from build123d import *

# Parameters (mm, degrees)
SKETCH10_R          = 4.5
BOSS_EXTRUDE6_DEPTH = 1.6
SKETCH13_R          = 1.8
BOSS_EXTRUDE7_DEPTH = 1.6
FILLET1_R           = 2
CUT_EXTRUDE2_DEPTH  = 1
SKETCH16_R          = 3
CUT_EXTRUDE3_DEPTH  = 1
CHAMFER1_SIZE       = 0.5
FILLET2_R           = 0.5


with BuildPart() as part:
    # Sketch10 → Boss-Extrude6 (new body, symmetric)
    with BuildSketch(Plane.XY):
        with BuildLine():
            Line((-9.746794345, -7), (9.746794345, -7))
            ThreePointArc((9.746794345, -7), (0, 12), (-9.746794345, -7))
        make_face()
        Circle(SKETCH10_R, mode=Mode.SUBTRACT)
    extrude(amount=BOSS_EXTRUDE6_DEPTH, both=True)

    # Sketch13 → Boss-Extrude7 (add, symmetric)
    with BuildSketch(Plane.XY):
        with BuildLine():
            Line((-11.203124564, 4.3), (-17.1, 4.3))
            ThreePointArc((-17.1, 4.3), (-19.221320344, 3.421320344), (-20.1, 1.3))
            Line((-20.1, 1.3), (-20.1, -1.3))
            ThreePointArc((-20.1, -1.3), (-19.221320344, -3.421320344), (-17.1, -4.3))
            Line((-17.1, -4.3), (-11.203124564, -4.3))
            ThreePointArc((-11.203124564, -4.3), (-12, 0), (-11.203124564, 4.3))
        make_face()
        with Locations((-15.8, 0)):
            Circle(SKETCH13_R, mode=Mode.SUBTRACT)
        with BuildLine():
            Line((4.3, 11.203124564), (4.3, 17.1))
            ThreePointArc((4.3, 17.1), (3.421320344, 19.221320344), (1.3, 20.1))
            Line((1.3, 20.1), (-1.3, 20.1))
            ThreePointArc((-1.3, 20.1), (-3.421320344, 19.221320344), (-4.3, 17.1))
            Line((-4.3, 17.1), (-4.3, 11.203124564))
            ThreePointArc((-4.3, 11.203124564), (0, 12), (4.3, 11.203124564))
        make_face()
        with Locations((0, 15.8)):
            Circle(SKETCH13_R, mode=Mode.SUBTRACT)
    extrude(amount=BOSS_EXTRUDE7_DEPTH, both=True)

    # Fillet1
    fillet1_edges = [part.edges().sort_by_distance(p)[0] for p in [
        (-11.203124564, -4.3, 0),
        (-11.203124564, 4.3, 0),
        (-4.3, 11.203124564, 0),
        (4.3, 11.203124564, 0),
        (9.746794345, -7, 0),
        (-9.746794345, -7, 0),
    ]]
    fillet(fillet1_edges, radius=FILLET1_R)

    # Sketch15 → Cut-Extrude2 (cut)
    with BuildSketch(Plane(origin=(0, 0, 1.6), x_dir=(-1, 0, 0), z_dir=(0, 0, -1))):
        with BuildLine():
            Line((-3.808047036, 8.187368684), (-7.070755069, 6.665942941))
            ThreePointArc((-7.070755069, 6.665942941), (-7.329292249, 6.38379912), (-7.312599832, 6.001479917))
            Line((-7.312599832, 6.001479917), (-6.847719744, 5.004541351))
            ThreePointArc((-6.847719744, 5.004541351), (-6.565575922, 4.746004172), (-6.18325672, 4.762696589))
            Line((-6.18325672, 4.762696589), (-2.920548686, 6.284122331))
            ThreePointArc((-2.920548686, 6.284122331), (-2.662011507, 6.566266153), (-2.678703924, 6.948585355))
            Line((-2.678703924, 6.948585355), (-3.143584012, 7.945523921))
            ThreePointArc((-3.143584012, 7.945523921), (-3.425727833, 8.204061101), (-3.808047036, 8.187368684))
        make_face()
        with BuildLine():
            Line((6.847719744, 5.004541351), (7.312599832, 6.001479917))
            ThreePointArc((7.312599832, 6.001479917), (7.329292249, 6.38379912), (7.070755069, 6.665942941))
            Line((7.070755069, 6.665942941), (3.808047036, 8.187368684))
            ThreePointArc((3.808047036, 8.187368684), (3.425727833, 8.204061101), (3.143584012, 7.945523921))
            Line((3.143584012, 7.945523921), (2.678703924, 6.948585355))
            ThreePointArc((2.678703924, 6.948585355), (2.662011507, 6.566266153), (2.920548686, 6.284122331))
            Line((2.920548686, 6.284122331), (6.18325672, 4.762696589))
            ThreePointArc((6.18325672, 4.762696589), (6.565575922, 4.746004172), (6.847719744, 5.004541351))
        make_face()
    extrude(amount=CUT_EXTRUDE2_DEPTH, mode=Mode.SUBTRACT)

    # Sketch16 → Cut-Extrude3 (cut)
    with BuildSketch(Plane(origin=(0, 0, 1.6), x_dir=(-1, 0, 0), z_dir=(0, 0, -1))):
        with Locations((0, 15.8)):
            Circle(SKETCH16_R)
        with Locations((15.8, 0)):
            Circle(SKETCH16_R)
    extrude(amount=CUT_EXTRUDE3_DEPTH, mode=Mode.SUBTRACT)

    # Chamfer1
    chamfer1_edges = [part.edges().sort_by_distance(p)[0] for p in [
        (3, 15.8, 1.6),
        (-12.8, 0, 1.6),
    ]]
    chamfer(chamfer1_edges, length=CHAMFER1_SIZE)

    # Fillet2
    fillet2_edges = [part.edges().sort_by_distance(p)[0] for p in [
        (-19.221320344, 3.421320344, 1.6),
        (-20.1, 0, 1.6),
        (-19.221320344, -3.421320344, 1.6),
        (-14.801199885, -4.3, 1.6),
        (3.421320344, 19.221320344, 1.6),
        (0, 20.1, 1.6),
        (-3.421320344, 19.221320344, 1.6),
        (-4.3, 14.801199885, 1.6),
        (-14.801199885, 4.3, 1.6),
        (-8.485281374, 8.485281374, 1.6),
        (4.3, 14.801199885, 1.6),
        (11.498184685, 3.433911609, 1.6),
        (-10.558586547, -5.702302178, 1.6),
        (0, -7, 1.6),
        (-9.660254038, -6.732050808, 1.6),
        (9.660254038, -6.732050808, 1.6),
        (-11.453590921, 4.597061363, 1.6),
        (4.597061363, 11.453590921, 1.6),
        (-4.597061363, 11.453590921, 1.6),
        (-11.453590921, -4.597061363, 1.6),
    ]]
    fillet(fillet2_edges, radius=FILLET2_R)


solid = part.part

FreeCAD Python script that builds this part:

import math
import FreeCAD as App
import Part
import Sketcher
Q = App.Units.Quantity


def edges_at(feature, points):
    """Names of the edges that pass closest to the given points."""
    edges = feature.Shape.Edges
    near = lambda p: min(range(len(edges)), key=lambda i: edges[i].distToShape(Part.Vertex(*p))[0])
    return sorted({f"Edge{near(p) + 1}" for p in points})

doc = App.newDocument("Part")
body = doc.addObject("PartDesign::Body", "Body")

sketch1 = doc.addObject("Sketcher::SketchObject", "Sketch")
body.addObject(sketch1)
sketch1.AttachmentSupport = (doc.XY_Plane, [""])
sketch1.MapMode = "FlatFace"
sketch1.addGeometry(Part.LineSegment(App.Vector(-9.7, -7, 0), App.Vector(9.7, -7, 0)), False)
sketch1.addGeometry(Part.ArcOfCircle(Part.Circle(App.Vector(0, 0, 0), App.Vector(0, 0, 1), 12), math.radians(-36), math.radians(216)), False)
sketch1.addGeometry(Part.Circle(App.Vector(0, 0, 0), App.Vector(0, 0, 1), 4.5), False)
sketch1.addConstraint(Sketcher.Constraint("Coincident", 0, 1, 1, 2))
sketch1.addConstraint(Sketcher.Constraint("Coincident", 1, 1, 0, 2))
sketch1.addConstraint(Sketcher.Constraint("Horizontal", 0))
sketch1.addConstraint(Sketcher.Constraint("Coincident", 1, 3, -1, 1))
sketch1.addConstraint(Sketcher.Constraint("Coincident", 2, 3, -1, 1))
sketch1.addConstraint(Sketcher.Constraint("Diameter", 2, 9.0))
sketch1.addConstraint(Sketcher.Constraint("Radius", 1, 12.0))
sketch1.addConstraint(Sketcher.Constraint("DistanceY", 0, 1, -1, 1, 7.0))
pad1 = doc.addObject("PartDesign::Pad", "Pad")
body.addObject(pad1)
pad1.Profile = sketch1
pad1.Length = 3.2
pad1.Midplane = True

sketch2 = doc.addObject("Sketcher::SketchObject", "Sketch001")
body.addObject(sketch2)
sketch2.AttachmentSupport = (doc.XY_Plane, [""])
sketch2.MapMode = "FlatFace"
sketch2.addGeometry(Part.LineSegment(App.Vector(-11.2, 4.3, 0), App.Vector(-17.1, 4.3, 0)), False)
sketch2.addGeometry(Part.ArcOfCircle(Part.Circle(App.Vector(-17.1, 1.3, 0), App.Vector(0, 0, 1), 3), math.radians(90), math.radians(180)), False)
sketch2.addGeometry(Part.LineSegment(App.Vector(-20.1, 1.3, 0), App.Vector(-20.1, -1.3, 0)), False)
sketch2.addGeometry(Part.ArcOfCircle(Part.Circle(App.Vector(-17.1, -1.3, 0), App.Vector(0, 0, 1), 3), math.radians(180), math.radians(270)), False)
sketch2.addGeometry(Part.LineSegment(App.Vector(-17.1, -4.3, 0), App.Vector(-11.2, -4.3, 0)), False)
sketch2.addGeometry(Part.ArcOfCircle(Part.Circle(App.Vector(0, 0, 0), App.Vector(0, 0, 1), 12), math.radians(159), math.radians(201)), False)
sketch2.addGeometry(Part.Circle(App.Vector(-15.8, 0, 0), App.Vector(0, 0, 1), 1.8), False)
sketch2.addGeometry(Part.LineSegment(App.Vector(4.3, 11.2, 0), App.Vector(4.3, 17.1, 0)), False)
sketch2.addGeometry(Part.ArcOfCircle(Part.Circle(App.Vector(1.3, 17.1, 0), App.Vector(0, 0, 1), 3), math.radians(0), math.radians(90)), False)
sketch2.addGeometry(Part.LineSegment(App.Vector(1.3, 20.1, 0), App.Vector(-1.3, 20.1, 0)), False)
sketch2.addGeometry(Part.ArcOfCircle(Part.Circle(App.Vector(-1.3, 17.1, 0), App.Vector(0, 0, 1), 3), math.radians(90), math.radians(180)), False)
sketch2.addGeometry(Part.LineSegment(App.Vector(-4.3, 17.1, 0), App.Vector(-4.3, 11.2, 0)), False)
sketch2.addGeometry(Part.ArcOfCircle(Part.Circle(App.Vector(0, 0, 0), App.Vector(0, 0, 1), 12), math.radians(69), math.radians(111)), False)
sketch2.addGeometry(Part.Circle(App.Vector(0, 15.8, 0), App.Vector(0, 0, 1), 1.8), False)
sketch2.addConstraint(Sketcher.Constraint("Tangent", 0, 2, 1, 1))
sketch2.addConstraint(Sketcher.Constraint("Tangent", 1, 2, 2, 1))
sketch2.addConstraint(Sketcher.Constraint("Tangent", 2, 2, 3, 1))
sketch2.addConstraint(Sketcher.Constraint("Tangent", 3, 2, 4, 1))
sketch2.addConstraint(Sketcher.Constraint("Coincident", 4, 2, 5, 2))
sketch2.addConstraint(Sketcher.Constraint("Coincident", 5, 1, 0, 1))
sketch2.addConstraint(Sketcher.Constraint("Tangent", 7, 2, 8, 1))
sketch2.addConstraint(Sketcher.Constraint("Tangent", 8, 2, 9, 1))
sketch2.addConstraint(Sketcher.Constraint("Tangent", 9, 2, 10, 1))
sketch2.addConstraint(Sketcher.Constraint("Tangent", 10, 2, 11, 1))
sketch2.addConstraint(Sketcher.Constraint("Coincident", 11, 2, 12, 2))
sketch2.addConstraint(Sketcher.Constraint("Coincident", 12, 1, 7, 1))
sketch2.addConstraint(Sketcher.Constraint("Horizontal", 0))
sketch2.addConstraint(Sketcher.Constraint("Vertical", 2))
sketch2.addConstraint(Sketcher.Constraint("Horizontal", 4))
sketch2.addConstraint(Sketcher.Constraint("Vertical", 7))
sketch2.addConstraint(Sketcher.Constraint("Horizontal", 9))
sketch2.addConstraint(Sketcher.Constraint("Vertical", 11))
sketch2.addConstraint(Sketcher.Constraint("Coincident", 5, 3, -1, 1))
sketch2.addConstraint(Sketcher.Constraint("Coincident", 12, 3, -1, 1))
sketch2.addConstraint(Sketcher.Constraint("Equal", 1, 3))
sketch2.addConstraint(Sketcher.Constraint("Equal", 3, 8))
sketch2.addConstraint(Sketcher.Constraint("Equal", 8, 10))
sketch2.addConstraint(Sketcher.Constraint("Equal", 5, 12))
sketch2.addConstraint(Sketcher.Constraint("Equal", 6, 13))
sketch2.addConstraint(Sketcher.Constraint("PointOnObject", 6, 3, -1))
sketch2.addConstraint(Sketcher.Constraint("PointOnObject", 13, 3, -2))
sketch2.addConstraint(Sketcher.Constraint("Horizontal", 11, 2, 12, 1))
sketch2.addConstraint(Sketcher.Constraint("Vertical", 4, 2, 5, 1))
sketch2.addConstraint(Sketcher.Constraint("Equal", 9, 2))
sketch2.addConstraint(Sketcher.Constraint("Equal", 4, 7))
sketch2.addConstraint(Sketcher.Constraint("Radius", 1, 3.0))
sketch2.addConstraint(Sketcher.Constraint("Radius", 5, 12.0))
sketch2.addConstraint(Sketcher.Constraint("Diameter", 6, 3.6))
sketch2.addConstraint(Sketcher.Constraint("DistanceX", 9, 2, 9, 1, 2.6))
sketch2.addConstraint(Sketcher.Constraint("DistanceX", 1, 3, -1, 1, 17.1))
sketch2.addConstraint(Sketcher.Constraint("DistanceX", 6, 3, -1, 1, 15.8))
sketch2.addConstraint(Sketcher.Constraint("DistanceY", -1, 1, 13, 3, 15.8))
pad2 = doc.addObject("PartDesign::Pad", "Pad001")
body.addObject(pad2)
pad2.Profile = sketch2
pad2.Length = 3.2
pad2.Midplane = True
doc.recompute()

fillet = doc.addObject("PartDesign::Fillet", "Fillet")
body.addObject(fillet)
fillet.Base = (pad2, edges_at(pad2, [
    (-11.203, -4.3, 0),
    (-11.203, 4.3, 0),
    (-4.3, 11.203, 0),
    (4.3, 11.203, 0),
    (9.747, -7, 0),
    (-9.747, -7, 0),
]))
fillet.Radius = 2

sketch3 = doc.addObject("Sketcher::SketchObject", "Sketch002")
body.addObject(sketch3)
sketch3.AttachmentSupport = (doc.XY_Plane, [""])
sketch3.MapMode = "FlatFace"
sketch3.AttachmentOffset = App.Placement(App.Vector(0, 0, 1.6), App.Rotation())
sketch3.addGeometry(Part.LineSegment(App.Vector(3.81, 8.19, 0), App.Vector(7.07, 6.67, 0)), False)
sketch3.addGeometry(Part.ArcOfCircle(Part.Circle(App.Vector(6.86, 6.21, 0), App.Vector(0, 0, 1), 0.5), math.radians(-25), math.radians(65)), False)
sketch3.addGeometry(Part.LineSegment(App.Vector(7.31, 6, 0), App.Vector(6.85, 5, 0)), False)
sketch3.addGeometry(Part.ArcOfCircle(Part.Circle(App.Vector(6.39, 5.22, 0), App.Vector(0, 0, 1), 0.5), math.radians(-115), math.radians(-25)), False)
sketch3.addGeometry(Part.LineSegment(App.Vector(6.18, 4.76, 0), App.Vector(2.92, 6.28, 0)), False)
sketch3.addGeometry(Part.ArcOfCircle(Part.Circle(App.Vector(3.13, 6.74, 0), App.Vector(0, 0, 1), 0.5), math.radians(155), math.radians(245)), False)
sketch3.addGeometry(Part.LineSegment(App.Vector(2.68, 6.95, 0), App.Vector(3.14, 7.95, 0)), False)
sketch3.addGeometry(Part.ArcOfCircle(Part.Circle(App.Vector(3.6, 7.73, 0), App.Vector(0, 0, 1), 0.5), math.radians(65), math.radians(155)), False)
sketch3.addGeometry(Part.LineSegment(App.Vector(-6.85, 5, 0), App.Vector(-7.31, 6, 0)), False)
sketch3.addGeometry(Part.ArcOfCircle(Part.Circle(App.Vector(-6.86, 6.21, 0), App.Vector(0, 0, 1), 0.5), math.radians(115), math.radians(205)), False)
sketch3.addGeometry(Part.LineSegment(App.Vector(-7.07, 6.67, 0), App.Vector(-3.81, 8.19, 0)), False)
sketch3.addGeometry(Part.ArcOfCircle(Part.Circle(App.Vector(-3.6, 7.73, 0), App.Vector(0, 0, 1), 0.5), math.radians(25), math.radians(115)), False)
sketch3.addGeometry(Part.LineSegment(App.Vector(-3.14, 7.95, 0), App.Vector(-2.68, 6.95, 0)), False)
sketch3.addGeometry(Part.ArcOfCircle(Part.Circle(App.Vector(-3.13, 6.74, 0), App.Vector(0, 0, 1), 0.5), math.radians(-65), math.radians(25)), False)
sketch3.addGeometry(Part.LineSegment(App.Vector(-2.92, 6.28, 0), App.Vector(-6.18, 4.76, 0)), False)
sketch3.addGeometry(Part.ArcOfCircle(Part.Circle(App.Vector(-6.39, 5.22, 0), App.Vector(0, 0, 1), 0.5), math.radians(-155), math.radians(-65)), False)
sketch3.addConstraint(Sketcher.Constraint("Tangent", 0, 2, 1, 2))
sketch3.addConstraint(Sketcher.Constraint("Tangent", 1, 1, 2, 1))
sketch3.addConstraint(Sketcher.Constraint("Tangent", 2, 2, 3, 2))
sketch3.addConstraint(Sketcher.Constraint("Tangent", 3, 1, 4, 1))
sketch3.addConstraint(Sketcher.Constraint("Tangent", 4, 2, 5, 2))
sketch3.addConstraint(Sketcher.Constraint("Tangent", 5, 1, 6, 1))
sketch3.addConstraint(Sketcher.Constraint("Tangent", 6, 2, 7, 2))
sketch3.addConstraint(Sketcher.Constraint("Tangent", 7, 1, 0, 1))
sketch3.addConstraint(Sketcher.Constraint("Tangent", 8, 2, 9, 2))
sketch3.addConstraint(Sketcher.Constraint("Tangent", 9, 1, 10, 1))
sketch3.addConstraint(Sketcher.Constraint("Tangent", 10, 2, 11, 2))
sketch3.addConstraint(Sketcher.Constraint("Tangent", 11, 1, 12, 1))
sketch3.addConstraint(Sketcher.Constraint("Tangent", 12, 2, 13, 2))
sketch3.addConstraint(Sketcher.Constraint("Tangent", 13, 1, 14, 1))
sketch3.addConstraint(Sketcher.Constraint("Tangent", 14, 2, 15, 2))
sketch3.addConstraint(Sketcher.Constraint("Tangent", 15, 1, 8, 1))
sketch3.addConstraint(Sketcher.Constraint("Equal", 1, 3))
sketch3.addConstraint(Sketcher.Constraint("Equal", 3, 5))
sketch3.addConstraint(Sketcher.Constraint("Equal", 5, 7))
sketch3.addConstraint(Sketcher.Constraint("Equal", 7, 9))
sketch3.addConstraint(Sketcher.Constraint("Equal", 9, 11))
sketch3.addConstraint(Sketcher.Constraint("Equal", 11, 13))
sketch3.addConstraint(Sketcher.Constraint("Equal", 13, 15))
sketch3.addConstraint(Sketcher.Constraint("Symmetric", 1, 3, 9, 3, -2))
sketch3.addConstraint(Sketcher.Constraint("Symmetric", 7, 3, 11, 3, -2))
sketch3.addConstraint(Sketcher.Constraint("Symmetric", 5, 3, 13, 3, -2))
sketch3.addConstraint(Sketcher.Constraint("Symmetric", 3, 3, 15, 3, -2))
sketch3.addConstraint(Sketcher.Constraint("Perpendicular", 0, 2))
sketch3.addConstraint(Sketcher.Constraint("Perpendicular", 2, 4))
sketch3.addConstraint(Sketcher.Constraint("Perpendicular", 4, 6))
sketch3.addConstraint(Sketcher.Constraint("Radius", 1, 0.5))
sketch3.addConstraint(Sketcher.Constraint("Angle", 0, Q("-25 deg")))
sketch3.addConstraint(Sketcher.Constraint("Distance", 0, 3.6))
sketch3.addConstraint(Sketcher.Constraint("Distance", 2, 1.1))
sketch3.addConstraint(Sketcher.Constraint("DistanceX", -1, 1, 1, 1, 7.3126))
sketch3.addConstraint(Sketcher.Constraint("DistanceY", -1, 1, 1, 3, 6.212789))
pocket1 = doc.addObject("PartDesign::Pocket", "Pocket")
body.addObject(pocket1)
pocket1.Profile = sketch3
pocket1.Length = 1

sketch4 = doc.addObject("Sketcher::SketchObject", "Sketch003")
body.addObject(sketch4)
sketch4.AttachmentSupport = (doc.XY_Plane, [""])
sketch4.MapMode = "FlatFace"
sketch4.AttachmentOffset = App.Placement(App.Vector(0, 0, 1.6), App.Rotation())
sketch4.addGeometry(Part.Circle(App.Vector(0, 15.8, 0), App.Vector(0, 0, 1), 3), False)
sketch4.addGeometry(Part.Circle(App.Vector(-15.8, 0, 0), App.Vector(0, 0, 1), 3), False)
sketch4.addConstraint(Sketcher.Constraint("Equal", 0, 1))
sketch4.addConstraint(Sketcher.Constraint("PointOnObject", 0, 3, -2))
sketch4.addConstraint(Sketcher.Constraint("PointOnObject", 1, 3, -1))
sketch4.addConstraint(Sketcher.Constraint("Diameter", 0, 6.0))
sketch4.addConstraint(Sketcher.Constraint("DistanceY", -1, 1, 0, 3, 15.8))
sketch4.addConstraint(Sketcher.Constraint("DistanceX", 1, 3, -1, 1, 15.8))
pocket2 = doc.addObject("PartDesign::Pocket", "Pocket001")
body.addObject(pocket2)
pocket2.Profile = sketch4
pocket2.Length = 1
doc.recompute()

chamfer = doc.addObject("PartDesign::Chamfer", "Chamfer")
body.addObject(chamfer)
chamfer.Base = (pocket2, edges_at(pocket2, [(3, 15.8, 1.6), (-12.8, 0, 1.6)]))
chamfer.Size = 0.5
doc.recompute()

fillet2 = doc.addObject("PartDesign::Fillet", "Fillet001")
body.addObject(fillet2)
fillet2.Base = (chamfer, edges_at(chamfer, [
    (-19.221, 3.421, 1.6),
    (-20.1, 0, 1.6),
    (-19.221, -3.421, 1.6),
    (-14.801, -4.3, 1.6),
    (3.421, 19.221, 1.6),
    (0, 20.1, 1.6),
    (-3.421, 19.221, 1.6),
    (-4.3, 14.801, 1.6),
    (-14.801, 4.3, 1.6),
    (-8.485, 8.485, 1.6),
    (4.3, 14.801, 1.6),
    (11.498, 3.434, 1.6),
    (-10.559, -5.702, 1.6),
    (0, -7, 1.6),
    (-9.66, -6.732, 1.6),
    (9.66, -6.732, 1.6),
    (-11.454, 4.597, 1.6),
    (4.597, 11.454, 1.6),
    (-4.597, 11.454, 1.6),
    (-11.454, -4.597, 1.6),
]))
fillet2.Radius = 0.5

doc.recompute()
